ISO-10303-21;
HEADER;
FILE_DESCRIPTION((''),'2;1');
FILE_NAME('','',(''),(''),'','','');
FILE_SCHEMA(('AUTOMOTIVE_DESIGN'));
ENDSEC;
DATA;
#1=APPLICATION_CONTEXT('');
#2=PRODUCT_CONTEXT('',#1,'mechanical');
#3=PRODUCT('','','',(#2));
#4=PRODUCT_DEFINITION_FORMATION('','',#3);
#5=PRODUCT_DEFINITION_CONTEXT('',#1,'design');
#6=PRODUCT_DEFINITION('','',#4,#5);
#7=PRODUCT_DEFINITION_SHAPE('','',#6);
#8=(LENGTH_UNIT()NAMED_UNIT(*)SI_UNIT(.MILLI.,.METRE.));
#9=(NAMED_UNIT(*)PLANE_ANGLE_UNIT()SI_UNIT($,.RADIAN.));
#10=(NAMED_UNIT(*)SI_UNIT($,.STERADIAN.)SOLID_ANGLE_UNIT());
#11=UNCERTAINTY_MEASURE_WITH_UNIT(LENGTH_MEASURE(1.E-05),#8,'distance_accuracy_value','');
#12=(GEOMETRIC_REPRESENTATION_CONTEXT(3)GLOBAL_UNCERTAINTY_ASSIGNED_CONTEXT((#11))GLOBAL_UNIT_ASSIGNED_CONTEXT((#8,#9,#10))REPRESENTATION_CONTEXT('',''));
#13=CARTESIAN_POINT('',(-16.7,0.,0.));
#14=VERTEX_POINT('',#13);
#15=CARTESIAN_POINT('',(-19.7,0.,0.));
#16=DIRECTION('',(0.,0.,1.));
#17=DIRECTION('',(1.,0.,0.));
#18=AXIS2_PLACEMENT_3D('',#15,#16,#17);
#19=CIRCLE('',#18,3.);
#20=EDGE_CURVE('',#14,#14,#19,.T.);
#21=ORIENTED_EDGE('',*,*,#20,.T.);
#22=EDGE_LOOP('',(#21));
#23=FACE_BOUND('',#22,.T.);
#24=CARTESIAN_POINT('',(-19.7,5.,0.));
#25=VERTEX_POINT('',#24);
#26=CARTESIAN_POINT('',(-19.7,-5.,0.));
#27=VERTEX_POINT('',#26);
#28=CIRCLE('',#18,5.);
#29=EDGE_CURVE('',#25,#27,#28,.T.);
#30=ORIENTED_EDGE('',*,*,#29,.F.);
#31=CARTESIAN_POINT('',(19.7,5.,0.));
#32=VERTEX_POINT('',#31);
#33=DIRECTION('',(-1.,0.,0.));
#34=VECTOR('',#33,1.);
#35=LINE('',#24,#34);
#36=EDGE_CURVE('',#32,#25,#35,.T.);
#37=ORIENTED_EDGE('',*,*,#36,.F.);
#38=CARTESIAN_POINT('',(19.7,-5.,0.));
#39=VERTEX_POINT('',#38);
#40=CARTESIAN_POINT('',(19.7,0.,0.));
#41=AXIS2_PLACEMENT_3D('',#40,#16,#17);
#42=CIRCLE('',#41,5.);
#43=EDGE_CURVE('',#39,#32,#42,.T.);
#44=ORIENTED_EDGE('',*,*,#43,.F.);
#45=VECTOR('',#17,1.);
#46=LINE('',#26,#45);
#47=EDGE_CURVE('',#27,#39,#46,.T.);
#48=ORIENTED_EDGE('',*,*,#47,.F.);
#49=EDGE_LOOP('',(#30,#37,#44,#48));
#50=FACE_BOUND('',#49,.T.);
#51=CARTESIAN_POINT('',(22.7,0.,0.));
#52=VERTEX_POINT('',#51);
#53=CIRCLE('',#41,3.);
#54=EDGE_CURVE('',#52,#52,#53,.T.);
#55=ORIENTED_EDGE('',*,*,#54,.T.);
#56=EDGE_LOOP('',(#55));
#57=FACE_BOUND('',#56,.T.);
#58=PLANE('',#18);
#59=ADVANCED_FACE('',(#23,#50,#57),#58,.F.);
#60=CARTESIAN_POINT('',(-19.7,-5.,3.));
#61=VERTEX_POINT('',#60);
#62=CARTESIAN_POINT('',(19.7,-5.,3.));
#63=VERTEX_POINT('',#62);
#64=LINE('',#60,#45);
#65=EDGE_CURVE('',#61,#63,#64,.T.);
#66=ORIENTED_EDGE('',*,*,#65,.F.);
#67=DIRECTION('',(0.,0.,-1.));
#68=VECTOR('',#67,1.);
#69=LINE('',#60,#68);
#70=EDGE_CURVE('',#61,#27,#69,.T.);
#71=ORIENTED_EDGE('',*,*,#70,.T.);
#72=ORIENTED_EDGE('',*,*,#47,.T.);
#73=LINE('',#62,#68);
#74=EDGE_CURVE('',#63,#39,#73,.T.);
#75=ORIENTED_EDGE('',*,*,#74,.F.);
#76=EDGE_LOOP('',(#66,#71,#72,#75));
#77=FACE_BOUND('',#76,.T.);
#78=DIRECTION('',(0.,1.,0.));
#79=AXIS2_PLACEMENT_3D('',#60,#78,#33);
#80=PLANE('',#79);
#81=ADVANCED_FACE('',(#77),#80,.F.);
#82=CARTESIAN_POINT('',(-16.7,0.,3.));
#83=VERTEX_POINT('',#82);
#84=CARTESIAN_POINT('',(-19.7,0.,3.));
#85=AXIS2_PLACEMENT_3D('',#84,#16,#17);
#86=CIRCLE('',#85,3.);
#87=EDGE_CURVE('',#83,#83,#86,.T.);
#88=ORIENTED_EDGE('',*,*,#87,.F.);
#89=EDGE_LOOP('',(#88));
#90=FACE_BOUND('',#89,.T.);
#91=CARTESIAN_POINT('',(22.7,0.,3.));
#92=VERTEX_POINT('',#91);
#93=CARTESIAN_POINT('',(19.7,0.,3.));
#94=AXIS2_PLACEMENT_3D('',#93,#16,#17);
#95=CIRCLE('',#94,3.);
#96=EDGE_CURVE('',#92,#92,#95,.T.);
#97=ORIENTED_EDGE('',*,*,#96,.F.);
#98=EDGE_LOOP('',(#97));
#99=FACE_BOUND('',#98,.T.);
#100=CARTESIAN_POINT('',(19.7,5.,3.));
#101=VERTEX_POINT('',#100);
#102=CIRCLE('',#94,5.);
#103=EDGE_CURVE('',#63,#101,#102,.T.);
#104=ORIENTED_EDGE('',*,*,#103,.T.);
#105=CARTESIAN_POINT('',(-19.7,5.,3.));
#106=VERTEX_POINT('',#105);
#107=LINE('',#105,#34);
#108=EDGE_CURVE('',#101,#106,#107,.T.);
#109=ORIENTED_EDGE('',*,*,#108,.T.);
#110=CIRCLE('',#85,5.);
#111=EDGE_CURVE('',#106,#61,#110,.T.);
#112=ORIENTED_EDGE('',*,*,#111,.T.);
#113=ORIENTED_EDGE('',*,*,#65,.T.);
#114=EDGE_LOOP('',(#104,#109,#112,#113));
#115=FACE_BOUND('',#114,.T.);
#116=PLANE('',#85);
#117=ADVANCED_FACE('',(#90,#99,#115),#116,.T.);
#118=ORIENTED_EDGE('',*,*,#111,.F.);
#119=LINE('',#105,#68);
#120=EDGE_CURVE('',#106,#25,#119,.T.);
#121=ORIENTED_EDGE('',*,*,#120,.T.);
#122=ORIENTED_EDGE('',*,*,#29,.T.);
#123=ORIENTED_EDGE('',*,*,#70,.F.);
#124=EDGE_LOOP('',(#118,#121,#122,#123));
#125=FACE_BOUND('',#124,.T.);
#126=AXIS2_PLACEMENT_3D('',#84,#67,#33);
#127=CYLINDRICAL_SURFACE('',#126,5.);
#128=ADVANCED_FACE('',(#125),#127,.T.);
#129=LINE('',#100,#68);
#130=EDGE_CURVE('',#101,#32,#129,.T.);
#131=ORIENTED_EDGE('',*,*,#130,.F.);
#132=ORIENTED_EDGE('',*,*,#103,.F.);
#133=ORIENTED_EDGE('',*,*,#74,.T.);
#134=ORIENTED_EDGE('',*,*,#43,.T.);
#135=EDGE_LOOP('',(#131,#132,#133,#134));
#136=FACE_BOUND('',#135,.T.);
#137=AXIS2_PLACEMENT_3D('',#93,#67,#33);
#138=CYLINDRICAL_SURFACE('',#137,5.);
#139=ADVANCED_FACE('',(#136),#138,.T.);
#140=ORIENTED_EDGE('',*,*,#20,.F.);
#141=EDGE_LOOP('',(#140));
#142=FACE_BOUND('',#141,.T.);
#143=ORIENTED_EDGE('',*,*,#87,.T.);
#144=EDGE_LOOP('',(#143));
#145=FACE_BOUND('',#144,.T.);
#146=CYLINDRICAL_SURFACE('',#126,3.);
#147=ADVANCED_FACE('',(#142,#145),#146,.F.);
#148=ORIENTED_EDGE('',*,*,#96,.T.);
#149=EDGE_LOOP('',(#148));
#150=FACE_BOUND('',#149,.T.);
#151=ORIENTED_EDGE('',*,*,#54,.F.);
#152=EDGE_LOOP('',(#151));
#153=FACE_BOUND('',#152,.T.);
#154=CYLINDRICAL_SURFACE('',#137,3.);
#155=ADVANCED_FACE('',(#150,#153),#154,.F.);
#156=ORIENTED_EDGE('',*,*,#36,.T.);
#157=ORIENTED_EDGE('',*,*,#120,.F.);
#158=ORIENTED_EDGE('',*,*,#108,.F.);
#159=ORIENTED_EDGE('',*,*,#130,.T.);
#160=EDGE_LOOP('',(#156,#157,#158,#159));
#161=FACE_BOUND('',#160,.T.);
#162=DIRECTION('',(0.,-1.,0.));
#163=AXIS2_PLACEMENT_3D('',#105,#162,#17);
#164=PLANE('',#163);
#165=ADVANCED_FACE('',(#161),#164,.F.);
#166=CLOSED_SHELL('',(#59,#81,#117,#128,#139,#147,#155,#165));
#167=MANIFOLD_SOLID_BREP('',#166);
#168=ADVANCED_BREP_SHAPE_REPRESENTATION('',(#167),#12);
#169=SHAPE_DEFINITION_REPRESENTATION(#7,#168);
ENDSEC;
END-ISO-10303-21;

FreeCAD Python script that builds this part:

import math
import FreeCAD as App
import Part
import Sketcher
Q = App.Units.Quantity

doc = App.newDocument("Part")
body = doc.addObject("PartDesign::Body", "Body")

# Sketch on XY plane
sketch1 = body.newObject("Sketcher::SketchObject", "Sketch")
sketch1.AttachmentSupport = (doc.getObject("XY_Plane"), [""])
sketch1.MapMode = "FlatFace"
sketch1.addGeometry(Part.LineSegment(App.Vector(19.7, 5, 0), App.Vector(-19.7, 5, 0)), False)
sketch1.addGeometry(Part.ArcOfCircle(Part.Circle(App.Vector(-19.7, 0, 0), App.Vector(0, 0, 1), 5), math.radians(90), math.radians(270)), False)
sketch1.addGeometry(Part.LineSegment(App.Vector(-19.7, -5, 0), App.Vector(19.7, -5, 0)), False)
sketch1.addGeometry(Part.ArcOfCircle(Part.Circle(App.Vector(19.7, 0, 0), App.Vector(0, 0, 1), 5), math.radians(-90), math.radians(90)), False)
sketch1.addGeometry(Part.Circle(App.Vector(19.7, 0, 0), App.Vector(0, 0, 1), 3), False)
sketch1.addGeometry(Part.Circle(App.Vector(-19.7, 0, 0), App.Vector(0, 0, 1), 3), False)
sketch1.addConstraint(Sketcher.Constraint("Tangent", 0, 2, 1, 1))
sketch1.addConstraint(Sketcher.Constraint("Tangent", 1, 2, 2, 1))
sketch1.addConstraint(Sketcher.Constraint("Tangent", 2, 2, 3, 1))
sketch1.addConstraint(Sketcher.Constraint("Tangent", 3, 2, 0, 1))
sketch1.addConstraint(Sketcher.Constraint("Horizontal", 0))
sketch1.addConstraint(Sketcher.Constraint("Horizontal", 2))
sketch1.addConstraint(Sketcher.Constraint("Coincident", 4, 3, 3, 3))
sketch1.addConstraint(Sketcher.Constraint("Coincident", 5, 3, 1, 3))
sketch1.addConstraint(Sketcher.Constraint("Equal", 4, 5))
sketch1.addConstraint(Sketcher.Constraint("Symmetric", 1, 3, 3, 3, -1, 1))
sketch1.addConstraint(Sketcher.Constraint("Diameter", 4, Q("6 mm")))
sketch1.addConstraint(Sketcher.Constraint("Radius", 1, Q("5 mm")))
sketch1.addConstraint(Sketcher.Constraint("DistanceX", 0, 2, 0, 1, Q("39.4 mm")))
pad1 = body.newObject("PartDesign::Pad", "Pad")
pad1.Profile = sketch1
pad1.Length = 3

doc.recompute()
